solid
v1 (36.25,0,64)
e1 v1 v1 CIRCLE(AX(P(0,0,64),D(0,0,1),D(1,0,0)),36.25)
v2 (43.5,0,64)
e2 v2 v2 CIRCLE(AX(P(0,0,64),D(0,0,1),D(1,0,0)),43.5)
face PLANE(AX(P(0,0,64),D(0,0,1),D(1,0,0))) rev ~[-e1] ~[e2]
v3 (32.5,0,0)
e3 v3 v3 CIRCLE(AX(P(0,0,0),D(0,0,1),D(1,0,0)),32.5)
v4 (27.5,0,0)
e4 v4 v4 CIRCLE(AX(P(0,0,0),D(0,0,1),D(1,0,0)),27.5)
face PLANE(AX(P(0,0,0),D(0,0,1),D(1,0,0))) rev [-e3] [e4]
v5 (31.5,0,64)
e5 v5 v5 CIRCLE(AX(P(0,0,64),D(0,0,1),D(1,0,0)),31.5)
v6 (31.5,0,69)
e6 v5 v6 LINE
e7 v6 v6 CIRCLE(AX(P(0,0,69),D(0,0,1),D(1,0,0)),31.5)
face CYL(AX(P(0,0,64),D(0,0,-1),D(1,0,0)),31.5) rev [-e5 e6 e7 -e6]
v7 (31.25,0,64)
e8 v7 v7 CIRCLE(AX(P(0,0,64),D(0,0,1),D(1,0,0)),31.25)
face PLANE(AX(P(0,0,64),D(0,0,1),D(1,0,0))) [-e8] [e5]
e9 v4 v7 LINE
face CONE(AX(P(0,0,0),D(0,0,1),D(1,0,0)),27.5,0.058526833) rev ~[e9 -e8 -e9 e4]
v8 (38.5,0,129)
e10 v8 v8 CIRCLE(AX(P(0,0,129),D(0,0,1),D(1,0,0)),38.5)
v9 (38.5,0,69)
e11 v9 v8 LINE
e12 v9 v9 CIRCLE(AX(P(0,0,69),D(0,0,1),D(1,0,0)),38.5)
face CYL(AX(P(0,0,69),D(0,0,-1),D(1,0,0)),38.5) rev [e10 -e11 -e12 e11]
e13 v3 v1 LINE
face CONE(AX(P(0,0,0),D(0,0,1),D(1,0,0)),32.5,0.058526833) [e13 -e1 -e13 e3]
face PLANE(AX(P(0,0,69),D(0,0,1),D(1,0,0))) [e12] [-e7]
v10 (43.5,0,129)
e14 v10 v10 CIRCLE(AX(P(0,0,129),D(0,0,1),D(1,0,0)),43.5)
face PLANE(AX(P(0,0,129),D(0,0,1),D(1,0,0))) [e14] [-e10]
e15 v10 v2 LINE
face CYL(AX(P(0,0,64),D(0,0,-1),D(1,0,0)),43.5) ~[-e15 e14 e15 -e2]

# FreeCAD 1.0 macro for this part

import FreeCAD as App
import Part
import Sketcher

doc = App.newDocument("Part")
body = doc.addObject("PartDesign::Body", "Body")

# Sketch on XZ plane
sketch1 = body.newObject("Sketcher::SketchObject", "Sketch")
sketch1.AttachmentSupport = (doc.getObject("XZ_Plane"), [""])
sketch1.MapMode = "FlatFace"
sketch1.addGeometry(Part.LineSegment(App.Vector(0, 0, 0), App.Vector(27.5, 0, 0)), False)
sketch1.addGeometry(Part.LineSegment(App.Vector(27.5, 0, 0), App.Vector(31.25, 64, 0)), False)
sketch1.addGeometry(Part.LineSegment(App.Vector(31.25, 64, 0), App.Vector(0, 64, 0)), False)
sketch1.addGeometry(Part.LineSegment(App.Vector(0, 64, 0), App.Vector(0, 0, 0)), False)
sketch1.addConstraint(Sketcher.Constraint("Coincident", 0, 2, 1, 1))
sketch1.addConstraint(Sketcher.Constraint("Coincident", 1, 2, 2, 1))
sketch1.addConstraint(Sketcher.Constraint("Coincident", 2, 2, 3, 1))
sketch1.addConstraint(Sketcher.Constraint("Coincident", 3, 2, 0, 1))
sketch1.addConstraint(Sketcher.Constraint("Horizontal", 0))
sketch1.addConstraint(Sketcher.Constraint("Horizontal", 2))
sketch1.addConstraint(Sketcher.Constraint("Vertical", 3))
sketch1.addConstraint(Sketcher.Constraint("Coincident", 3, 2, -1, 1))
sketch1.addConstraint(Sketcher.Constraint("DistanceY", 3, 2, 3, 1, 64.0))
sketch1.addConstraint(Sketcher.Constraint("DistanceX", 0, 1, 0, 2, 27.5))
sketch1.addConstraint(Sketcher.Constraint("DistanceX", 2, 2, 2, 1, 31.25))
revolution = body.newObject("PartDesign::Revolution", "Revolution")
revolution.Profile = sketch1
revolution.ReferenceAxis = (sketch1, ["V_Axis"])
revolution.Angle = 360
body2 = doc.addObject("PartDesign::Body", "Body001")

# Sketch on XZ plane
sketch2 = body2.newObject("Sketcher::SketchObject", "Sketch001")
sketch2.AttachmentSupport = (doc.getObject("XZ_Plane001"), [""])
sketch2.MapMode = "FlatFace"
sketch2.addGeometry(Part.LineSegment(App.Vector(0, 0, 0), App.Vector(32.5, 0, 0)), False)
sketch2.addGeometry(Part.LineSegment(App.Vector(32.5, 0, 0), App.Vector(36.25, 64, 0)), False)
sketch2.addGeometry(Part.LineSegment(App.Vector(36.25, 64, 0), App.Vector(0, 64, 0)), False)
sketch2.addGeometry(Part.LineSegment(App.Vector(0, 64, 0), App.Vector(0, 0, 0)), False)
sketch2.addConstraint(Sketcher.Constraint("Coincident", 0, 2, 1, 1))
sketch2.addConstraint(Sketcher.Constraint("Coincident", 1, 2, 2, 1))
sketch2.addConstraint(Sketcher.Constraint("Coincident", 2, 2, 3, 1))
sketch2.addConstraint(Sketcher.Constraint("Coincident", 3, 2, 0, 1))
sketch2.addConstraint(Sketcher.Constraint("Horizontal", 0))
sketch2.addConstraint(Sketcher.Constraint("Horizontal", 2))
sketch2.addConstraint(Sketcher.Constraint("Vertical", 3))
sketch2.addConstraint(Sketcher.Constraint("Coincident", 3, 2, -1, 1))
sketch2.addConstraint(Sketcher.Constraint("DistanceY", 3, 2, 3, 1, 64.0))
sketch2.addConstraint(Sketcher.Constraint("DistanceX", 0, 1, 0, 2, 32.5))
sketch2.addConstraint(Sketcher.Constraint("DistanceX", 2, 2, 2, 1, 36.25))
revolution2 = body2.newObject("PartDesign::Revolution", "Revolution001")
revolution2.Profile = sketch2
revolution2.ReferenceAxis = (sketch2, ["V_Axis"])
revolution2.Angle = 360
doc.recompute()

boolean = body2.newObject("PartDesign::Boolean", "Boolean")
boolean.Type = "Cut"
boolean.addObjects([body])
body3 = doc.addObject("PartDesign::Body", "Body002")

# Sketch on XY plane
sketch3 = body3.newObject("Sketcher::SketchObject", "Sketch002")
sketch3.AttachmentSupport = (doc.getObject("XY_Plane002"), [""])
sketch3.MapMode = "FlatFace"
sketch3.addGeometry(Part.Circle(App.Vector(0, 0, 0), App.Vector(0, 0, 1), 31.5), False)
sketch3.addConstraint(Sketcher.Constraint("Coincident", 0, 3, -1, 1))
sketch3.addConstraint(Sketcher.Constraint("Diameter", 0, 63.0))
pad1 = body3.newObject("PartDesign::Pad", "Pad")
pad1.Profile = sketch3
pad1.Length = 5
body4 = doc.addObject("PartDesign::Body", "Body003")

# Sketch on XY plane
sketch4 = body4.newObject("Sketcher::SketchObject", "Sketch003")
sketch4.AttachmentSupport = (doc.getObject("XY_Plane003"), [""])
sketch4.MapMode = "FlatFace"
sketch4.addGeometry(Part.Circle(App.Vector(0, 0, 0), App.Vector(0, 0, 1), 43.5), False)
sketch4.addConstraint(Sketcher.Constraint("Coincident", 0, 3, -1, 1))
sketch4.addConstraint(Sketcher.Constraint("Diameter", 0, 87.0))
pad2 = body4.newObject("PartDesign::Pad", "Pad001")
pad2.Profile = sketch4
pad2.Length = 5
doc.recompute()

boolean2 = body4.newObject("PartDesign::Boolean", "Boolean001")
boolean2.Type = "Cut"
boolean2.addObjects([body3])
body5 = doc.addObject("PartDesign::Body", "Body004")
doc.recompute()

body4.Placement = App.Placement(App.Vector(0, 0, 64), App.Rotation(App.Vector(0, 0, 1), 0))
boolean3 = body5.newObject("PartDesign::Boolean", "Boolean002")
boolean3.Type = "Fuse"
boolean3.addObjects([body4])
body6 = doc.addObject("PartDesign::Body", "Body005")

# Sketch on XY plane
sketch5 = body6.newObject("Sketcher::SketchObject", "Sketch004")
sketch5.AttachmentSupport = (doc.getObject("XY_Plane005"), [""])
sketch5.MapMode = "FlatFace"
sketch5.addGeometry(Part.Circle(App.Vector(0, 0, 0), App.Vector(0, 0, 1), 38.5), False)
sketch5.addConstraint(Sketcher.Constraint("Coincident", 0, 3, -1, 1))
sketch5.addConstraint(Sketcher.Constraint("Diameter", 0, 77.0))
pad3 = body6.newObject("PartDesign::Pad", "Pad002")
pad3.Profile = sketch5
pad3.Length = 60
body7 = doc.addObject("PartDesign::Body", "Body006")

# Sketch on XY plane
sketch6 = body7.newObject("Sketcher::SketchObject", "Sketch005")
sketch6.AttachmentSupport = (doc.getObject("XY_Plane006"), [""])
sketch6.MapMode = "FlatFace"
sketch6.addGeometry(Part.Circle(App.Vector(0, 0, 0), App.Vector(0, 0, 1), 43.5), False)
sketch6.addConstraint(Sketcher.Constraint("Coincident", 0, 3, -1, 1))
sketch6.addConstraint(Sketcher.Constraint("Diameter", 0, 87.0))
pad4 = body7.newObject("PartDesign::Pad", "Pad003")
pad4.Profile = sketch6
pad4.Length = 60
doc.recompute()

boolean4 = body7.newObject("PartDesign::Boolean", "Boolean003")
boolean4.Type = "Cut"
boolean4.addObjects([body6])
body8 = doc.addObject("PartDesign::Body", "Body007")
body8.AllowCompound = True
doc.recompute()

body7.Placement = App.Placement(App.Vector(0, 0, 69), App.Rotation(App.Vector(0, 0, 1), 0))
boolean5 = body8.newObject("PartDesign::Boolean", "Boolean004")
boolean5.Type = "Fuse"
boolean5.addObjects([body7])
doc.recompute()

boolean6 = body8.newObject("PartDesign::Boolean", "Boolean005")
boolean6.Type = "Fuse"
boolean6.addObjects([body2])
doc.recompute()

boolean7 = body8.newObject("PartDesign::Boolean", "Boolean006")
boolean7.Type = "Fuse"
boolean7.addObjects([body5])

doc.recompute()
